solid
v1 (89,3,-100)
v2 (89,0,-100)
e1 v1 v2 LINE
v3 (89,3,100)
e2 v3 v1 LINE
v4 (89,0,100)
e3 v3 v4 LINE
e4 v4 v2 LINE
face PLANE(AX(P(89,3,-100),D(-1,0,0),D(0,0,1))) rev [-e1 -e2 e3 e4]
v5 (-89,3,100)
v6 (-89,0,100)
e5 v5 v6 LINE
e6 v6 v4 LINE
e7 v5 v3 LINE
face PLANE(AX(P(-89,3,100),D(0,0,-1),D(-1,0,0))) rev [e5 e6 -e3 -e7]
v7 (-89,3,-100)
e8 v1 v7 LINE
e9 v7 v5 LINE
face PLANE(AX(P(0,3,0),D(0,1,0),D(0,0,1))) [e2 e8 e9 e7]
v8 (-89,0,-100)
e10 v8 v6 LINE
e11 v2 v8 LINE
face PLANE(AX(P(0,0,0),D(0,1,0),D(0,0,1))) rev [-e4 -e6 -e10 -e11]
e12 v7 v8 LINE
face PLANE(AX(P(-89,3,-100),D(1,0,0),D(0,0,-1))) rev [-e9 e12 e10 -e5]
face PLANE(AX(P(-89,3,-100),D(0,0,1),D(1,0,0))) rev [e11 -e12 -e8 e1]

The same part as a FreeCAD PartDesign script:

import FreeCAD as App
import Part
import Sketcher
from FreeCAD import Vector
Q = App.Units.Quantity


def add_polygon(sketch, points):
    """Adds a closed chain of lines whose ends are joined by coincident constraints."""
    first, n = sketch.GeometryCount, len(points)
    for a, b in zip(points, points[1:] + points[:1]):
        sketch.addGeometry(Part.LineSegment(App.Vector(*a, 0), App.Vector(*b, 0)), False)
    for i in range(n):
        sketch.addConstraint(Sketcher.Constraint("Coincident", first + i, 2, first + (i + 1) % n, 1))

doc = App.newDocument("Part")
body = doc.addObject("PartDesign::Body", "Body")

sketch1 = body.newObject("Sketcher::SketchObject", "Sketch")
sketch1.AttachmentSupport = (doc.getObject("XZ_Plane"), [""])
sketch1.MapMode = "FlatFace"
add_polygon(sketch1, [(-89, -100), (-89, 100), (89, 100), (89, -100)])
sketch1.addConstraint([
    Sketcher.Constraint("Vertical", 0),
    Sketcher.Constraint("Horizontal", 1),
    Sketcher.Constraint("Vertical", 2),
    Sketcher.Constraint("Horizontal", 3),
    Sketcher.Constraint("Symmetric", 0, 2, 2, 2, -1, 1),
    Sketcher.Constraint("DistanceX", 1, 1, 1, 2, Q("178 mm")),
    Sketcher.Constraint("DistanceY", 0, 1, 0, 2, Q("200 mm")),
])
pad1 = body.newObject("PartDesign::Pad", "Pad")
pad1.Profile = sketch1
pad1.Length = 3
pad1.Reversed = True

doc.recompute()
